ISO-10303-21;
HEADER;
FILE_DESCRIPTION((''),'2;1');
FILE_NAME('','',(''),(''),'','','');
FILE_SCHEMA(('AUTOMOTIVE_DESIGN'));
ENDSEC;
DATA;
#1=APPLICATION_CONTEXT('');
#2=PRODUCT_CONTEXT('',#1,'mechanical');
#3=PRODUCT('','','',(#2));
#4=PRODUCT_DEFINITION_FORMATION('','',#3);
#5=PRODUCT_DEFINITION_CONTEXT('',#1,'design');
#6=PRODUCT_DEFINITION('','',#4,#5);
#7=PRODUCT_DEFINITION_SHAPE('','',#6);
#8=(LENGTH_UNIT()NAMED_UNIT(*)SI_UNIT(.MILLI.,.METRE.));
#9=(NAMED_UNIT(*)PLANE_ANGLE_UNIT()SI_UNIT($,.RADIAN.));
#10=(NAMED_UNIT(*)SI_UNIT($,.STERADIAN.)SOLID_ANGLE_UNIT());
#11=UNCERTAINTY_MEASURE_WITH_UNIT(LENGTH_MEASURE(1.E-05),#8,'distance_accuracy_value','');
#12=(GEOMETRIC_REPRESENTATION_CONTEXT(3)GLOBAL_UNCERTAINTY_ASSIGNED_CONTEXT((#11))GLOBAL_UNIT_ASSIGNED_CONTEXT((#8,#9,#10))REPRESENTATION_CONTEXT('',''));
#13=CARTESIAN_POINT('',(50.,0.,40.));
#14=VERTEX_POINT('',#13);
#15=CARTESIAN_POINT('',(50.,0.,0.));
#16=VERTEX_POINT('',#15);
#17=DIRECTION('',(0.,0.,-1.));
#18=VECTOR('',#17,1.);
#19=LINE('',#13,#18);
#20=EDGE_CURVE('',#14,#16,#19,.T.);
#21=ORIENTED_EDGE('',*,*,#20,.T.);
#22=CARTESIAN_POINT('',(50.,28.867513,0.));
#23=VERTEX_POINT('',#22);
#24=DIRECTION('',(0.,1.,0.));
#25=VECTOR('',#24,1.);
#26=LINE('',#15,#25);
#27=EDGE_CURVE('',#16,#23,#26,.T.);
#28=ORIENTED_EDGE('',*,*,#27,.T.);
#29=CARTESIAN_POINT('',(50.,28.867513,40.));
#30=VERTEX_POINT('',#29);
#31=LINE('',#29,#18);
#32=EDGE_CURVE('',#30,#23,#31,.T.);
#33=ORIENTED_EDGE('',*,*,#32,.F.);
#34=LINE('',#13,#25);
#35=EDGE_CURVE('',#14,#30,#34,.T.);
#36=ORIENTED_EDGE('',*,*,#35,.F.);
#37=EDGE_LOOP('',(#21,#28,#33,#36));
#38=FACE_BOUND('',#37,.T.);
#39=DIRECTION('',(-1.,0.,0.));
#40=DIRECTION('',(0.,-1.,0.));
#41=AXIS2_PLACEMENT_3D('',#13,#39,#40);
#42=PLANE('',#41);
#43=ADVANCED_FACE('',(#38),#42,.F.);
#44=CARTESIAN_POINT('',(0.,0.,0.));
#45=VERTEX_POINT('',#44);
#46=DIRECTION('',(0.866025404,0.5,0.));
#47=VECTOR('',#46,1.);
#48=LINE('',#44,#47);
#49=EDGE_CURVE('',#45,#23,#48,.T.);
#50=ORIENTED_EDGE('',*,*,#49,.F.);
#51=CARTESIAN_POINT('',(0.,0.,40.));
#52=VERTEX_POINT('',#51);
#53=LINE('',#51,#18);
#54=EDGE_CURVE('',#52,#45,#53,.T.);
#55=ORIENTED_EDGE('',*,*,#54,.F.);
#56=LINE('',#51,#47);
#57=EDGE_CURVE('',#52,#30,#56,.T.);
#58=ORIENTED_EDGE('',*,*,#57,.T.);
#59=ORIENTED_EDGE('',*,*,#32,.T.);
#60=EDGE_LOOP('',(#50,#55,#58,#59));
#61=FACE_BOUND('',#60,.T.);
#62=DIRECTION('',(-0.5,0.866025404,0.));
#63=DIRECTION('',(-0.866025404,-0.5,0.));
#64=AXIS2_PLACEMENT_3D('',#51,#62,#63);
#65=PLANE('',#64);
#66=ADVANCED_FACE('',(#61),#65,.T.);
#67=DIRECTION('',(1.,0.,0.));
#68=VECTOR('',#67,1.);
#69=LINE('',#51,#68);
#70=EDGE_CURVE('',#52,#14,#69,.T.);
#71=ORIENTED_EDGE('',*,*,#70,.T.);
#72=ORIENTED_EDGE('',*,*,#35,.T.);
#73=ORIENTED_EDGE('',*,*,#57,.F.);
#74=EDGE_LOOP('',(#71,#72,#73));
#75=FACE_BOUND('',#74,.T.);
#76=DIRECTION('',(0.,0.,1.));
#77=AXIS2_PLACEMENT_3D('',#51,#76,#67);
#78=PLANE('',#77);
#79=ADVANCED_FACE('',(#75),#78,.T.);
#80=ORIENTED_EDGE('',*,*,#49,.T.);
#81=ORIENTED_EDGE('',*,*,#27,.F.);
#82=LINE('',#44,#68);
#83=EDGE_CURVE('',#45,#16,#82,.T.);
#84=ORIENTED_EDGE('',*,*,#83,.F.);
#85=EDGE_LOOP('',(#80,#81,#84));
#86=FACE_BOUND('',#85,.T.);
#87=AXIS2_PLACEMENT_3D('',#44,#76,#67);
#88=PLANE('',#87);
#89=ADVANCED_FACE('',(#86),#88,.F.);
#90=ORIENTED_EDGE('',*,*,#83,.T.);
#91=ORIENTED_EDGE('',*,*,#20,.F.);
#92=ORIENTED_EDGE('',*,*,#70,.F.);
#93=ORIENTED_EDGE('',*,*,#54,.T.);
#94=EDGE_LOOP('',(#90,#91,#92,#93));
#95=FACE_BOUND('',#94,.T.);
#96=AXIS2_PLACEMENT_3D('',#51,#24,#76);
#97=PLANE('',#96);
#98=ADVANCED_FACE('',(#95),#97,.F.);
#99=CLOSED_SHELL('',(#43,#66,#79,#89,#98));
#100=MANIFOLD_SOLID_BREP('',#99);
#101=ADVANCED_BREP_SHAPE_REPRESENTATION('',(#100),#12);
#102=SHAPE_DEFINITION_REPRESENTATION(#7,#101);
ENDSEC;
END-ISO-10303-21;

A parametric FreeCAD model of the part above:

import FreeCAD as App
import Part
import Sketcher
Q = App.Units.Quantity

doc = App.newDocument("Part")
body = doc.addObject("PartDesign::Body", "Body")

# Sketch on XY plane
sketch1 = body.newObject("Sketcher::SketchObject", "Sketch")
sketch1.AttachmentSupport = (doc.getObject("XY_Plane"), [""])
sketch1.MapMode = "FlatFace"
sketch1.addGeometry([
    Part.LineSegment(App.Vector(0, 0, 0), App.Vector(50, 0, 0)),
    Part.LineSegment(App.Vector(50, 0, 0), App.Vector(50, 29, 0)),
    Part.LineSegment(App.Vector(50, 29, 0), App.Vector(0, 0, 0)),
], False)
sketch1.addConstraint([
    Sketcher.Constraint("Coincident", 0, 2, 1, 1),
    Sketcher.Constraint("Coincident", 1, 2, 2, 1),
    Sketcher.Constraint("Coincident", 2, 2, 0, 1),
    Sketcher.Constraint("Horizontal", 0),
    Sketcher.Constraint("Vertical", 1),
    Sketcher.Constraint("Coincident", 2, 2, -1, 1),
    Sketcher.Constraint("DistanceX", 0, 1, 0, 2, Q("50 mm")),
    Sketcher.Constraint("Angle", 2, Q("-150 deg")),
])
pad1 = body.newObject("PartDesign::Pad", "Pad")
pad1.Profile = sketch1
pad1.Length = 40

doc.recompute()
